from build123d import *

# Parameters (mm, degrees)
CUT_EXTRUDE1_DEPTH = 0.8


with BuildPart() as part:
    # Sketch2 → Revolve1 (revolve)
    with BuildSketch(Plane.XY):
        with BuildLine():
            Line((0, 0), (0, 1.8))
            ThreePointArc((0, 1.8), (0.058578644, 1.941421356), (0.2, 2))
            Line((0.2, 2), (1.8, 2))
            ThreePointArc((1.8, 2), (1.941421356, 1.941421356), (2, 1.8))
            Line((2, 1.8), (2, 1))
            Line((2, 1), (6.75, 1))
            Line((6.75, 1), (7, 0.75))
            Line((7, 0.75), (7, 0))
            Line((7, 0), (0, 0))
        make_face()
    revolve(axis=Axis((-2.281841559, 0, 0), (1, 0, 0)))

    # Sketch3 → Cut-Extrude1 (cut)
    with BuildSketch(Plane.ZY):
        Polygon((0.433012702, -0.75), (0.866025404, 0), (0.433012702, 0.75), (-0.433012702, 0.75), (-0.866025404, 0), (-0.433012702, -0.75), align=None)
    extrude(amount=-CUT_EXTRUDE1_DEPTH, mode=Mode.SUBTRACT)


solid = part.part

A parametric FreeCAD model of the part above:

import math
import FreeCAD as App
import Part
import Sketcher
Q = App.Units.Quantity


def add_polygon(sketch, points):
    """Adds a closed chain of lines whose ends are joined by coincident constraints."""
    first, n = sketch.GeometryCount, len(points)
    for a, b in zip(points, points[1:] + points[:1]):
        sketch.addGeometry(Part.LineSegment(App.Vector(*a, 0), App.Vector(*b, 0)), False)
    for i in range(n):
        sketch.addConstraint(Sketcher.Constraint("Coincident", first + i, 2, first + (i + 1) % n, 1))

doc = App.newDocument("Part")
body = doc.addObject("PartDesign::Body", "Body")

# Sketch on XY plane
sketch1 = body.newObject("Sketcher::SketchObject", "Sketch")
sketch1.AttachmentSupport = (doc.getObject("XY_Plane"), [""])
sketch1.MapMode = "FlatFace"
sketch1.addGeometry(Part.LineSegment(App.Vector(0, 1.8, 0), App.Vector(0, 0, 0)), False)
sketch1.addGeometry(Part.LineSegment(App.Vector(0, 0, 0), App.Vector(7, 0, 0)), False)
sketch1.addGeometry(Part.LineSegment(App.Vector(7, 0, 0), App.Vector(7, 0.75, 0)), False)
sketch1.addGeometry(Part.LineSegment(App.Vector(7, 0.75, 0), App.Vector(6.75, 1, 0)), False)
sketch1.addGeometry(Part.LineSegment(App.Vector(6.75, 1, 0), App.Vector(2, 1, 0)), False)
sketch1.addGeometry(Part.LineSegment(App.Vector(2, 1, 0), App.Vector(2, 1.8, 0)), False)
sketch1.addGeometry(Part.ArcOfCircle(Part.Circle(App.Vector(1.8, 1.8, 0), App.Vector(0, 0, 1), 0.2), math.radians(0), math.radians(90)), False)
sketch1.addGeometry(Part.LineSegment(App.Vector(1.8, 2, 0), App.Vector(0.2, 2, 0)), False)
sketch1.addGeometry(Part.ArcOfCircle(Part.Circle(App.Vector(0.2, 1.8, 0), App.Vector(0, 0, 1), 0.2), math.radians(90), math.radians(180)), False)
sketch1.addConstraint(Sketcher.Constraint("Coincident", 0, 2, 1, 1))
sketch1.addConstraint(Sketcher.Constraint("Coincident", 1, 2, 2, 1))
sketch1.addConstraint(Sketcher.Constraint("Coincident", 2, 2, 3, 1))
sketch1.addConstraint(Sketcher.Constraint("Coincident", 3, 2, 4, 1))
sketch1.addConstraint(Sketcher.Constraint("Coincident", 4, 2, 5, 1))
sketch1.addConstraint(Sketcher.Constraint("Tangent", 5, 2, 6, 1))
sketch1.addConstraint(Sketcher.Constraint("Tangent", 6, 2, 7, 1))
sketch1.addConstraint(Sketcher.Constraint("Tangent", 7, 2, 8, 1))
sketch1.addConstraint(Sketcher.Constraint("Tangent", 8, 2, 0, 1))
sketch1.addConstraint(Sketcher.Constraint("Vertical", 0))
sketch1.addConstraint(Sketcher.Constraint("Horizontal", 1))
sketch1.addConstraint(Sketcher.Constraint("Vertical", 2))
sketch1.addConstraint(Sketcher.Constraint("Horizontal", 4))
sketch1.addConstraint(Sketcher.Constraint("Vertical", 5))
sketch1.addConstraint(Sketcher.Constraint("Horizontal", 7))
sketch1.addConstraint(Sketcher.Constraint("Coincident", 0, 2, -1, 1))
sketch1.addConstraint(Sketcher.Constraint("Equal", 6, 8))
sketch1.addConstraint(Sketcher.Constraint("Radius", 6, Q("0.2 mm")))
sketch1.addConstraint(Sketcher.Constraint("DistanceX", 1, 1, 1, 2, Q("7 mm")))
sketch1.addConstraint(Sketcher.Constraint("Angle", 3, Q("135 deg")))
sketch1.addConstraint(Sketcher.Constraint("DistanceX", 7, 2, 7, 1, Q("1.6 mm")))
sketch1.addConstraint(Sketcher.Constraint("DistanceY", 0, 2, 0, 1, Q("1.8 mm")))
sketch1.addConstraint(Sketcher.Constraint("DistanceY", 5, 1, 5, 2, Q("0.8 mm")))
sketch1.addConstraint(Sketcher.Constraint("DistanceX", 4, 2, 4, 1, Q("4.75 mm")))
revolution = body.newObject("PartDesign::Revolution", "Revolution")
revolution.Profile = sketch1
revolution.ReferenceAxis = (sketch1, ["H_Axis"])
revolution.Angle = 360

# Sketch on YZ plane
sketch2 = body.newObject("Sketcher::SketchObject", "Sketch001")
sketch2.AttachmentSupport = (doc.getObject("YZ_Plane"), [""])
sketch2.MapMode = "FlatFace"
add_polygon(sketch2, [(-0.8, 0.4), (0, 0.9), (0.8, 0.4), (0.8, -0.4), (0, -0.9), (-0.8, -0.4)])  # lines 0-5
sketch2.addConstraint(Sketcher.Constraint("Vertical", 2))
sketch2.addConstraint(Sketcher.Constraint("Vertical", 5))
sketch2.addConstraint(Sketcher.Constraint("Symmetric", 0, 2, 3, 2, -1, 1))
sketch2.addConstraint(Sketcher.Constraint("Symmetric", 1, 2, 4, 2, -1, 1))
sketch2.addConstraint(Sketcher.Constraint("PointOnObject", 0, 2, -2))
sketch2.addConstraint(Sketcher.Constraint("Parallel", 0, 3))
sketch2.addConstraint(Sketcher.Constraint("Horizontal", 2, 2, 4, 2))
sketch2.addConstraint(Sketcher.Constraint("Angle", 0, Q("30 deg")))
sketch2.addConstraint(Sketcher.Constraint("DistanceX", 4, 2, 2, 2, Q("1.5 mm")))
sketch2.addConstraint(Sketcher.Constraint("DistanceY", 2, 2, 2, 1, Q("0.866025 mm")))
pocket1 = body.newObject("PartDesign::Pocket", "Pocket")
pocket1.Profile = sketch2
pocket1.Length = 0.8
pocket1.Reversed = True

doc.recompute()
